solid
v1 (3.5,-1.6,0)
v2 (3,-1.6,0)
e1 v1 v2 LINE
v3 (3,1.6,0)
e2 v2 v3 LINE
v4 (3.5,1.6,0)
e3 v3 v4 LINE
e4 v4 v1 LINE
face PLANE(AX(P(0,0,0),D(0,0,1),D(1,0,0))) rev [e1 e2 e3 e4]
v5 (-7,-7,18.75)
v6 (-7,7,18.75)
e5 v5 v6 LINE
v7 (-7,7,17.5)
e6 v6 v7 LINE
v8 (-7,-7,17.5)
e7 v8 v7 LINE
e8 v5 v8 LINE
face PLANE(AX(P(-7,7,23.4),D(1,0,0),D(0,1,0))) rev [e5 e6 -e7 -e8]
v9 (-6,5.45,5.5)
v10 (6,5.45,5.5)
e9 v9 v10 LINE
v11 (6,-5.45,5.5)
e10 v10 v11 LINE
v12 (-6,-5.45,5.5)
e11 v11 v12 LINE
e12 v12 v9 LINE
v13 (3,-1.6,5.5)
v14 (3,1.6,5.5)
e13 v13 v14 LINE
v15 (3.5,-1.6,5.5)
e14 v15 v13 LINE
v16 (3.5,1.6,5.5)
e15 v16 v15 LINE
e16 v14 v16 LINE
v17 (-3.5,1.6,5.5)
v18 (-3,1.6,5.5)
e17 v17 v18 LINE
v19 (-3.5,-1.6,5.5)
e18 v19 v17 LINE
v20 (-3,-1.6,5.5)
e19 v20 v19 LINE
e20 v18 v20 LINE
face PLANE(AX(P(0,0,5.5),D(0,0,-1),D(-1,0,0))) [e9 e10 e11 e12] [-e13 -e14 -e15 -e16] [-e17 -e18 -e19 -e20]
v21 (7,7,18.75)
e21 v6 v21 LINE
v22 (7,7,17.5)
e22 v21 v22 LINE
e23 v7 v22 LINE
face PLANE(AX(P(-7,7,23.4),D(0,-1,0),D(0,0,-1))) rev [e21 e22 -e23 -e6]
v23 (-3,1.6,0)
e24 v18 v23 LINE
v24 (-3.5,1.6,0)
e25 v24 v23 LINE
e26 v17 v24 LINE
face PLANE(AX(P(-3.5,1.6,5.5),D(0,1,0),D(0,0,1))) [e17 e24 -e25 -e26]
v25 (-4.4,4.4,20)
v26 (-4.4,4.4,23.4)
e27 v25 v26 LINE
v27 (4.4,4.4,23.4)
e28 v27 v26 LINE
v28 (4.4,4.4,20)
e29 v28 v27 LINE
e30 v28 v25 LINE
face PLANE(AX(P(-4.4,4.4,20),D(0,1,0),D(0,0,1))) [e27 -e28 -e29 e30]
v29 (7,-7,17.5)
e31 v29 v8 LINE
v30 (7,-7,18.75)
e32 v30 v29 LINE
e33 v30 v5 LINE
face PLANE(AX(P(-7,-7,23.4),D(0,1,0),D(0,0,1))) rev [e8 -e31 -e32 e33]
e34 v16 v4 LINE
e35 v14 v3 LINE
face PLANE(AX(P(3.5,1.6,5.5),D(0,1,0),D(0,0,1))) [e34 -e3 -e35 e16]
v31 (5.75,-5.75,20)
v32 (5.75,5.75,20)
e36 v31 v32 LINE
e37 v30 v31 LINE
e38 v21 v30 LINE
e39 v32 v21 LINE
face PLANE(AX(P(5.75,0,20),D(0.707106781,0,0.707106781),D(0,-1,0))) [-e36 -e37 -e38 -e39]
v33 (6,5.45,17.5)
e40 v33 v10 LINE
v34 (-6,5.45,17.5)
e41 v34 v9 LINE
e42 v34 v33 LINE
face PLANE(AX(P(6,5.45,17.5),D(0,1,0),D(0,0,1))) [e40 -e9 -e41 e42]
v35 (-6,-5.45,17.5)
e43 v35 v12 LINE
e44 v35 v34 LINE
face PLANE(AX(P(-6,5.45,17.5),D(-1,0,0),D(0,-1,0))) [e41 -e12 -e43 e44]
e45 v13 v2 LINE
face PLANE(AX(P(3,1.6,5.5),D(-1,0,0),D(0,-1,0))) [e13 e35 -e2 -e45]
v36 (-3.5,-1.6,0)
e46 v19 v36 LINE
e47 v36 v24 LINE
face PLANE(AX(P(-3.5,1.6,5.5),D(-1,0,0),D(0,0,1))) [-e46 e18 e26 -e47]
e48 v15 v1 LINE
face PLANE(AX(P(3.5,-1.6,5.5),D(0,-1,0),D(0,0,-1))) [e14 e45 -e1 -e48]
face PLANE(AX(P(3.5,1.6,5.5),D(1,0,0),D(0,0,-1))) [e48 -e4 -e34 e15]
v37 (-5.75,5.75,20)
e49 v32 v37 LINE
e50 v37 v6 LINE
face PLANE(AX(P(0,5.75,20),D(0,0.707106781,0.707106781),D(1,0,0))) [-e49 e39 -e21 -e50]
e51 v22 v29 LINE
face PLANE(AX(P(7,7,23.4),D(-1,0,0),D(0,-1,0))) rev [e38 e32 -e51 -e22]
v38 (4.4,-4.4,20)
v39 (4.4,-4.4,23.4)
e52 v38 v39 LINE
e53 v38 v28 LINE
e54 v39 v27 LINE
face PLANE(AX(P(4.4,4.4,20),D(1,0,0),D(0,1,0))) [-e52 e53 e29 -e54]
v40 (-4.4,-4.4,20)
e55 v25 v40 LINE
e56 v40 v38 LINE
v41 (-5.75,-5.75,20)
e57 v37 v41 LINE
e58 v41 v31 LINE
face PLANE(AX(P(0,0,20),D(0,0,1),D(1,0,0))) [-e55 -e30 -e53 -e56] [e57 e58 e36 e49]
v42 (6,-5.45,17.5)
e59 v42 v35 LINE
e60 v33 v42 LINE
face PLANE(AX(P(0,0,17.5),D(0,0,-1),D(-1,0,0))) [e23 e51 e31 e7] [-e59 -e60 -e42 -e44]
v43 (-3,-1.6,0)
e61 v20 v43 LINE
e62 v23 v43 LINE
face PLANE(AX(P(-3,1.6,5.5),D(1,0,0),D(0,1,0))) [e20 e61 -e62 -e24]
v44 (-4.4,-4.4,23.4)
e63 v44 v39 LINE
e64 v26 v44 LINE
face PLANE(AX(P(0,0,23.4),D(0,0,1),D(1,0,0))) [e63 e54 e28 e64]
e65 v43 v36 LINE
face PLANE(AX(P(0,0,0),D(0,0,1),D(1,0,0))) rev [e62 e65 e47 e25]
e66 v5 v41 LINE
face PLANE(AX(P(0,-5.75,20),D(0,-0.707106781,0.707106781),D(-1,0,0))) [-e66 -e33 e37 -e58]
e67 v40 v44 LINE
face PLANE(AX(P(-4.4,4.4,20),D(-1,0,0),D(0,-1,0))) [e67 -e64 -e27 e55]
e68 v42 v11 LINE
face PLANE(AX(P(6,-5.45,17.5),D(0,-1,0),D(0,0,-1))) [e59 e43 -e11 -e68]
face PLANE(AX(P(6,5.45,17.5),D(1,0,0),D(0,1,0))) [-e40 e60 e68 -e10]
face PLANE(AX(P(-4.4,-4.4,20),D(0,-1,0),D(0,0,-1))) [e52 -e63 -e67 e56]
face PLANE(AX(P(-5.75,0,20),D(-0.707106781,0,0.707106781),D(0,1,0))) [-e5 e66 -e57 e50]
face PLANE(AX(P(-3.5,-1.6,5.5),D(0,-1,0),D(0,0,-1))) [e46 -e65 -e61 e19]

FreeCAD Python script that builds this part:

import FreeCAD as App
import Part
import Sketcher
from FreeCAD import Vector


def edges_at(feature, points):
    """Names of the edges that pass closest to the given points."""
    edges = feature.Shape.Edges
    near = lambda p: min(range(len(edges)), key=lambda i: edges[i].distToShape(Part.Vertex(*p))[0])
    return sorted({f"Edge{near(p) + 1}" for p in points})


def add_polygon(sketch, points):
    """Adds a closed chain of lines whose ends are joined by coincident constraints."""
    first, n = sketch.GeometryCount, len(points)
    for a, b in zip(points, points[1:] + points[:1]):
        sketch.addGeometry(Part.LineSegment(App.Vector(*a, 0), App.Vector(*b, 0)), False)
    for i in range(n):
        sketch.addConstraint(Sketcher.Constraint("Coincident", first + i, 2, first + (i + 1) % n, 1))

doc = App.newDocument("Part")
params = doc.addObject("Spreadsheet::Sheet", "Params")
for row, (alias, value) in enumerate([
    ("sketch1_width", "14 mm"),
    ("pad1_length", "23.4 mm"),
    ("sketch2_width", "14 mm"),
    ("sketch2_width2", "8.8 mm"),
    ("pocket1_length", "3.4 mm"),
    ("sketch3_width", "14 mm"),
    ("sketch3_width2", "12 mm"),
    ("sketch3_height", "10.9 mm"),
    ("pocket2_length", "17.5 mm"),
    ("sketch4_width", "12 mm"),
    ("sketch4_width2", "0.5 mm"),
    ("sketch4_height", "10.9 mm"),
    ("sketch4_height2", "3.2 mm"),
    ("pocket3_length", "5.5 mm"),
    ("chamfer_size", "1.25 mm"),
], start=1):
    params.set(f"A{row}", alias)
    params.set(f"B{row}", "=" + value)
    params.setAlias(f"B{row}", alias)

body = doc.addObject("PartDesign::Body", "Body")

# Sketch on XY plane
sketch1 = body.newObject("Sketcher::SketchObject", "Sketch")
sketch1.AttachmentSupport = (doc.getObject("XY_Plane"), [""])
sketch1.MapMode = "FlatFace"
add_polygon(sketch1, [(-7, 7), (-7, -7), (7, -7), (7, 7)])  # lines 0-3
sketch1.addConstraint([
    Sketcher.Constraint("Vertical", 0),
    Sketcher.Constraint("Horizontal", 1),
    Sketcher.Constraint("Vertical", 2),
    Sketcher.Constraint("Horizontal", 3),
    Sketcher.Constraint("Symmetric", 0, 2, 2, 2, -1, 1),
    Sketcher.Constraint("Equal", 3, 0),
    Sketcher.Constraint("DistanceX", 1, 1, 1, 2, 14.0),
])
sketch1.setExpression("Constraints[10]", "Params.sketch1_width")
pad1 = body.newObject("PartDesign::Pad", "Pad")
pad1.Profile = sketch1
pad1.setExpression("Length", "Params.pad1_length")

# Sketch on XY plane
sketch2 = body.newObject("Sketcher::SketchObject", "Sketch001")
sketch2.AttachmentSupport = (doc.getObject("XY_Plane"), [""])
sketch2.MapMode = "FlatFace"
sketch2.AttachmentOffset = App.Placement(Vector(0, 0, 23.4), App.Rotation())
add_polygon(sketch2, [(-7, 7), (-7, -7), (7, -7), (7, 7)])  # lines 0-3
add_polygon(sketch2, [(4, -4), (-4, -4), (-4, 4), (4, 4)])  # lines 4-7
sketch2.addConstraint([
    Sketcher.Constraint("Vertical", 0),
    Sketcher.Constraint("Horizontal", 1),
    Sketcher.Constraint("Vertical", 2),
    Sketcher.Constraint("Horizontal", 3),
    Sketcher.Constraint("Horizontal", 4),
    Sketcher.Constraint("Vertical", 5),
    Sketcher.Constraint("Horizontal", 6),
    Sketcher.Constraint("Vertical", 7),
    Sketcher.Constraint("Symmetric", 0, 2, 2, 2, -1, 1),
    Sketcher.Constraint("Symmetric", 4, 2, 6, 2, -1, 1),
    Sketcher.Constraint("Equal", 3, 0),
    Sketcher.Constraint("Equal", 6, 5),
    Sketcher.Constraint("DistanceX", 1, 1, 1, 2, 14.0),
    Sketcher.Constraint("DistanceX", 4, 2, 4, 1, 8.8),
])
sketch2.setExpression("Constraints[20]", "Params.sketch2_width")
sketch2.setExpression("Constraints[21]", "Params.sketch2_width2")
pocket1 = body.newObject("PartDesign::Pocket", "Pocket")
pocket1.Profile = sketch2
pocket1.setExpression("Length", "Params.pocket1_length")

# Sketch on XY plane
sketch3 = body.newObject("Sketcher::SketchObject", "Sketch002")
sketch3.AttachmentSupport = (doc.getObject("XY_Plane"), [""])
sketch3.MapMode = "FlatFace"
add_polygon(sketch3, [(7, 7), (7, -7), (-7, -7), (-7, 7)])  # lines 0-3
add_polygon(sketch3, [(-6, -5), (6, -5), (6, 5), (-6, 5)])  # lines 4-7
sketch3.addConstraint([
    Sketcher.Constraint("Vertical", 0),
    Sketcher.Constraint("Horizontal", 1),
    Sketcher.Constraint("Vertical", 2),
    Sketcher.Constraint("Horizontal", 3),
    Sketcher.Constraint("Horizontal", 4),
    Sketcher.Constraint("Vertical", 5),
    Sketcher.Constraint("Horizontal", 6),
    Sketcher.Constraint("Vertical", 7),
    Sketcher.Constraint("Symmetric", 0, 2, 2, 2, -1, 1),
    Sketcher.Constraint("Symmetric", 4, 2, 6, 2, -1, 1),
    Sketcher.Constraint("Equal", 3, 0),
    Sketcher.Constraint("DistanceX", 1, 2, 1, 1, 14.0),
    Sketcher.Constraint("DistanceX", 4, 1, 4, 2, 12.0),
    Sketcher.Constraint("DistanceY", 5, 1, 5, 2, 10.9),
])
sketch3.setExpression("Constraints[19]", "Params.sketch3_width")
sketch3.setExpression("Constraints[20]", "Params.sketch3_width2")
sketch3.setExpression("Constraints[21]", "Params.sketch3_height")
pocket2 = body.newObject("PartDesign::Pocket", "Pocket001")
pocket2.Profile = sketch3
pocket2.setExpression("Length", "Params.pocket2_length")
pocket2.Reversed = True

# Sketch on XY plane
sketch4 = body.newObject("Sketcher::SketchObject", "Sketch003")
sketch4.AttachmentSupport = (doc.getObject("XY_Plane"), [""])
sketch4.MapMode = "FlatFace"
add_polygon(sketch4, [(6, 5.5), (6, -5.5), (-6, -5.5), (-6, 5.5)])  # lines 0-3
add_polygon(sketch4, [(3, -1.6), (3.5, -1.6), (3.5, 1.6), (3, 1.6)])  # lines 4-7
add_polygon(sketch4, [(-3.5, -1.6), (-3, -1.6), (-3, 1.6), (-3.5, 1.6)])  # lines 8-11
sketch4.addConstraint([
    Sketcher.Constraint("Vertical", 0),
    Sketcher.Constraint("Horizontal", 1),
    Sketcher.Constraint("Vertical", 2),
    Sketcher.Constraint("Horizontal", 3),
    Sketcher.Constraint("Horizontal", 4),
    Sketcher.Constraint("Vertical", 5),
    Sketcher.Constraint("Horizontal", 6),
    Sketcher.Constraint("Vertical", 7),
    Sketcher.Constraint("Horizontal", 8),
    Sketcher.Constraint("Vertical", 9),
    Sketcher.Constraint("Horizontal", 10),
    Sketcher.Constraint("Vertical", 11),
    Sketcher.Constraint("Symmetric", 0, 2, 2, 2, -1, 1),
    Sketcher.Constraint("Symmetric", 6, 2, 8, 2, -1, 1),
    Sketcher.Constraint("Symmetric", 4, 2, 10, 2, -1, 1),
    Sketcher.Constraint("Horizontal", 7, 2, 8, 2),
    Sketcher.Constraint("DistanceX", 1, 2, 1, 1, 12.0),
    Sketcher.Constraint("DistanceX", 4, 1, 4, 2, 0.5),
    Sketcher.Constraint("DistanceY", 0, 2, 0, 1, 10.9),
    Sketcher.Constraint("DistanceY", 5, 1, 5, 2, 3.2),
    Sketcher.Constraint("DistanceX", -1, 1, 6, 2, 3.0),
])
sketch4.setExpression("Constraints[28]", "Params.sketch4_width")
sketch4.setExpression("Constraints[29]", "Params.sketch4_width2")
sketch4.setExpression("Constraints[30]", "Params.sketch4_height")
sketch4.setExpression("Constraints[31]", "Params.sketch4_height2")
pocket3 = body.newObject("PartDesign::Pocket", "Pocket002")
pocket3.Profile = sketch4
pocket3.setExpression("Length", "Params.pocket3_length")
pocket3.Reversed = True
doc.recompute()

chamfer = body.newObject("PartDesign::Chamfer", "Chamfer")
chamfer.Base = (pocket3, edges_at(pocket3, [
    (-7, 0, 20),
    (0, 7, 20),
    (7, 0, 20),
    (0, -7, 20),
]))
chamfer.setExpression("Size", "Params.chamfer_size")

doc.recompute()
